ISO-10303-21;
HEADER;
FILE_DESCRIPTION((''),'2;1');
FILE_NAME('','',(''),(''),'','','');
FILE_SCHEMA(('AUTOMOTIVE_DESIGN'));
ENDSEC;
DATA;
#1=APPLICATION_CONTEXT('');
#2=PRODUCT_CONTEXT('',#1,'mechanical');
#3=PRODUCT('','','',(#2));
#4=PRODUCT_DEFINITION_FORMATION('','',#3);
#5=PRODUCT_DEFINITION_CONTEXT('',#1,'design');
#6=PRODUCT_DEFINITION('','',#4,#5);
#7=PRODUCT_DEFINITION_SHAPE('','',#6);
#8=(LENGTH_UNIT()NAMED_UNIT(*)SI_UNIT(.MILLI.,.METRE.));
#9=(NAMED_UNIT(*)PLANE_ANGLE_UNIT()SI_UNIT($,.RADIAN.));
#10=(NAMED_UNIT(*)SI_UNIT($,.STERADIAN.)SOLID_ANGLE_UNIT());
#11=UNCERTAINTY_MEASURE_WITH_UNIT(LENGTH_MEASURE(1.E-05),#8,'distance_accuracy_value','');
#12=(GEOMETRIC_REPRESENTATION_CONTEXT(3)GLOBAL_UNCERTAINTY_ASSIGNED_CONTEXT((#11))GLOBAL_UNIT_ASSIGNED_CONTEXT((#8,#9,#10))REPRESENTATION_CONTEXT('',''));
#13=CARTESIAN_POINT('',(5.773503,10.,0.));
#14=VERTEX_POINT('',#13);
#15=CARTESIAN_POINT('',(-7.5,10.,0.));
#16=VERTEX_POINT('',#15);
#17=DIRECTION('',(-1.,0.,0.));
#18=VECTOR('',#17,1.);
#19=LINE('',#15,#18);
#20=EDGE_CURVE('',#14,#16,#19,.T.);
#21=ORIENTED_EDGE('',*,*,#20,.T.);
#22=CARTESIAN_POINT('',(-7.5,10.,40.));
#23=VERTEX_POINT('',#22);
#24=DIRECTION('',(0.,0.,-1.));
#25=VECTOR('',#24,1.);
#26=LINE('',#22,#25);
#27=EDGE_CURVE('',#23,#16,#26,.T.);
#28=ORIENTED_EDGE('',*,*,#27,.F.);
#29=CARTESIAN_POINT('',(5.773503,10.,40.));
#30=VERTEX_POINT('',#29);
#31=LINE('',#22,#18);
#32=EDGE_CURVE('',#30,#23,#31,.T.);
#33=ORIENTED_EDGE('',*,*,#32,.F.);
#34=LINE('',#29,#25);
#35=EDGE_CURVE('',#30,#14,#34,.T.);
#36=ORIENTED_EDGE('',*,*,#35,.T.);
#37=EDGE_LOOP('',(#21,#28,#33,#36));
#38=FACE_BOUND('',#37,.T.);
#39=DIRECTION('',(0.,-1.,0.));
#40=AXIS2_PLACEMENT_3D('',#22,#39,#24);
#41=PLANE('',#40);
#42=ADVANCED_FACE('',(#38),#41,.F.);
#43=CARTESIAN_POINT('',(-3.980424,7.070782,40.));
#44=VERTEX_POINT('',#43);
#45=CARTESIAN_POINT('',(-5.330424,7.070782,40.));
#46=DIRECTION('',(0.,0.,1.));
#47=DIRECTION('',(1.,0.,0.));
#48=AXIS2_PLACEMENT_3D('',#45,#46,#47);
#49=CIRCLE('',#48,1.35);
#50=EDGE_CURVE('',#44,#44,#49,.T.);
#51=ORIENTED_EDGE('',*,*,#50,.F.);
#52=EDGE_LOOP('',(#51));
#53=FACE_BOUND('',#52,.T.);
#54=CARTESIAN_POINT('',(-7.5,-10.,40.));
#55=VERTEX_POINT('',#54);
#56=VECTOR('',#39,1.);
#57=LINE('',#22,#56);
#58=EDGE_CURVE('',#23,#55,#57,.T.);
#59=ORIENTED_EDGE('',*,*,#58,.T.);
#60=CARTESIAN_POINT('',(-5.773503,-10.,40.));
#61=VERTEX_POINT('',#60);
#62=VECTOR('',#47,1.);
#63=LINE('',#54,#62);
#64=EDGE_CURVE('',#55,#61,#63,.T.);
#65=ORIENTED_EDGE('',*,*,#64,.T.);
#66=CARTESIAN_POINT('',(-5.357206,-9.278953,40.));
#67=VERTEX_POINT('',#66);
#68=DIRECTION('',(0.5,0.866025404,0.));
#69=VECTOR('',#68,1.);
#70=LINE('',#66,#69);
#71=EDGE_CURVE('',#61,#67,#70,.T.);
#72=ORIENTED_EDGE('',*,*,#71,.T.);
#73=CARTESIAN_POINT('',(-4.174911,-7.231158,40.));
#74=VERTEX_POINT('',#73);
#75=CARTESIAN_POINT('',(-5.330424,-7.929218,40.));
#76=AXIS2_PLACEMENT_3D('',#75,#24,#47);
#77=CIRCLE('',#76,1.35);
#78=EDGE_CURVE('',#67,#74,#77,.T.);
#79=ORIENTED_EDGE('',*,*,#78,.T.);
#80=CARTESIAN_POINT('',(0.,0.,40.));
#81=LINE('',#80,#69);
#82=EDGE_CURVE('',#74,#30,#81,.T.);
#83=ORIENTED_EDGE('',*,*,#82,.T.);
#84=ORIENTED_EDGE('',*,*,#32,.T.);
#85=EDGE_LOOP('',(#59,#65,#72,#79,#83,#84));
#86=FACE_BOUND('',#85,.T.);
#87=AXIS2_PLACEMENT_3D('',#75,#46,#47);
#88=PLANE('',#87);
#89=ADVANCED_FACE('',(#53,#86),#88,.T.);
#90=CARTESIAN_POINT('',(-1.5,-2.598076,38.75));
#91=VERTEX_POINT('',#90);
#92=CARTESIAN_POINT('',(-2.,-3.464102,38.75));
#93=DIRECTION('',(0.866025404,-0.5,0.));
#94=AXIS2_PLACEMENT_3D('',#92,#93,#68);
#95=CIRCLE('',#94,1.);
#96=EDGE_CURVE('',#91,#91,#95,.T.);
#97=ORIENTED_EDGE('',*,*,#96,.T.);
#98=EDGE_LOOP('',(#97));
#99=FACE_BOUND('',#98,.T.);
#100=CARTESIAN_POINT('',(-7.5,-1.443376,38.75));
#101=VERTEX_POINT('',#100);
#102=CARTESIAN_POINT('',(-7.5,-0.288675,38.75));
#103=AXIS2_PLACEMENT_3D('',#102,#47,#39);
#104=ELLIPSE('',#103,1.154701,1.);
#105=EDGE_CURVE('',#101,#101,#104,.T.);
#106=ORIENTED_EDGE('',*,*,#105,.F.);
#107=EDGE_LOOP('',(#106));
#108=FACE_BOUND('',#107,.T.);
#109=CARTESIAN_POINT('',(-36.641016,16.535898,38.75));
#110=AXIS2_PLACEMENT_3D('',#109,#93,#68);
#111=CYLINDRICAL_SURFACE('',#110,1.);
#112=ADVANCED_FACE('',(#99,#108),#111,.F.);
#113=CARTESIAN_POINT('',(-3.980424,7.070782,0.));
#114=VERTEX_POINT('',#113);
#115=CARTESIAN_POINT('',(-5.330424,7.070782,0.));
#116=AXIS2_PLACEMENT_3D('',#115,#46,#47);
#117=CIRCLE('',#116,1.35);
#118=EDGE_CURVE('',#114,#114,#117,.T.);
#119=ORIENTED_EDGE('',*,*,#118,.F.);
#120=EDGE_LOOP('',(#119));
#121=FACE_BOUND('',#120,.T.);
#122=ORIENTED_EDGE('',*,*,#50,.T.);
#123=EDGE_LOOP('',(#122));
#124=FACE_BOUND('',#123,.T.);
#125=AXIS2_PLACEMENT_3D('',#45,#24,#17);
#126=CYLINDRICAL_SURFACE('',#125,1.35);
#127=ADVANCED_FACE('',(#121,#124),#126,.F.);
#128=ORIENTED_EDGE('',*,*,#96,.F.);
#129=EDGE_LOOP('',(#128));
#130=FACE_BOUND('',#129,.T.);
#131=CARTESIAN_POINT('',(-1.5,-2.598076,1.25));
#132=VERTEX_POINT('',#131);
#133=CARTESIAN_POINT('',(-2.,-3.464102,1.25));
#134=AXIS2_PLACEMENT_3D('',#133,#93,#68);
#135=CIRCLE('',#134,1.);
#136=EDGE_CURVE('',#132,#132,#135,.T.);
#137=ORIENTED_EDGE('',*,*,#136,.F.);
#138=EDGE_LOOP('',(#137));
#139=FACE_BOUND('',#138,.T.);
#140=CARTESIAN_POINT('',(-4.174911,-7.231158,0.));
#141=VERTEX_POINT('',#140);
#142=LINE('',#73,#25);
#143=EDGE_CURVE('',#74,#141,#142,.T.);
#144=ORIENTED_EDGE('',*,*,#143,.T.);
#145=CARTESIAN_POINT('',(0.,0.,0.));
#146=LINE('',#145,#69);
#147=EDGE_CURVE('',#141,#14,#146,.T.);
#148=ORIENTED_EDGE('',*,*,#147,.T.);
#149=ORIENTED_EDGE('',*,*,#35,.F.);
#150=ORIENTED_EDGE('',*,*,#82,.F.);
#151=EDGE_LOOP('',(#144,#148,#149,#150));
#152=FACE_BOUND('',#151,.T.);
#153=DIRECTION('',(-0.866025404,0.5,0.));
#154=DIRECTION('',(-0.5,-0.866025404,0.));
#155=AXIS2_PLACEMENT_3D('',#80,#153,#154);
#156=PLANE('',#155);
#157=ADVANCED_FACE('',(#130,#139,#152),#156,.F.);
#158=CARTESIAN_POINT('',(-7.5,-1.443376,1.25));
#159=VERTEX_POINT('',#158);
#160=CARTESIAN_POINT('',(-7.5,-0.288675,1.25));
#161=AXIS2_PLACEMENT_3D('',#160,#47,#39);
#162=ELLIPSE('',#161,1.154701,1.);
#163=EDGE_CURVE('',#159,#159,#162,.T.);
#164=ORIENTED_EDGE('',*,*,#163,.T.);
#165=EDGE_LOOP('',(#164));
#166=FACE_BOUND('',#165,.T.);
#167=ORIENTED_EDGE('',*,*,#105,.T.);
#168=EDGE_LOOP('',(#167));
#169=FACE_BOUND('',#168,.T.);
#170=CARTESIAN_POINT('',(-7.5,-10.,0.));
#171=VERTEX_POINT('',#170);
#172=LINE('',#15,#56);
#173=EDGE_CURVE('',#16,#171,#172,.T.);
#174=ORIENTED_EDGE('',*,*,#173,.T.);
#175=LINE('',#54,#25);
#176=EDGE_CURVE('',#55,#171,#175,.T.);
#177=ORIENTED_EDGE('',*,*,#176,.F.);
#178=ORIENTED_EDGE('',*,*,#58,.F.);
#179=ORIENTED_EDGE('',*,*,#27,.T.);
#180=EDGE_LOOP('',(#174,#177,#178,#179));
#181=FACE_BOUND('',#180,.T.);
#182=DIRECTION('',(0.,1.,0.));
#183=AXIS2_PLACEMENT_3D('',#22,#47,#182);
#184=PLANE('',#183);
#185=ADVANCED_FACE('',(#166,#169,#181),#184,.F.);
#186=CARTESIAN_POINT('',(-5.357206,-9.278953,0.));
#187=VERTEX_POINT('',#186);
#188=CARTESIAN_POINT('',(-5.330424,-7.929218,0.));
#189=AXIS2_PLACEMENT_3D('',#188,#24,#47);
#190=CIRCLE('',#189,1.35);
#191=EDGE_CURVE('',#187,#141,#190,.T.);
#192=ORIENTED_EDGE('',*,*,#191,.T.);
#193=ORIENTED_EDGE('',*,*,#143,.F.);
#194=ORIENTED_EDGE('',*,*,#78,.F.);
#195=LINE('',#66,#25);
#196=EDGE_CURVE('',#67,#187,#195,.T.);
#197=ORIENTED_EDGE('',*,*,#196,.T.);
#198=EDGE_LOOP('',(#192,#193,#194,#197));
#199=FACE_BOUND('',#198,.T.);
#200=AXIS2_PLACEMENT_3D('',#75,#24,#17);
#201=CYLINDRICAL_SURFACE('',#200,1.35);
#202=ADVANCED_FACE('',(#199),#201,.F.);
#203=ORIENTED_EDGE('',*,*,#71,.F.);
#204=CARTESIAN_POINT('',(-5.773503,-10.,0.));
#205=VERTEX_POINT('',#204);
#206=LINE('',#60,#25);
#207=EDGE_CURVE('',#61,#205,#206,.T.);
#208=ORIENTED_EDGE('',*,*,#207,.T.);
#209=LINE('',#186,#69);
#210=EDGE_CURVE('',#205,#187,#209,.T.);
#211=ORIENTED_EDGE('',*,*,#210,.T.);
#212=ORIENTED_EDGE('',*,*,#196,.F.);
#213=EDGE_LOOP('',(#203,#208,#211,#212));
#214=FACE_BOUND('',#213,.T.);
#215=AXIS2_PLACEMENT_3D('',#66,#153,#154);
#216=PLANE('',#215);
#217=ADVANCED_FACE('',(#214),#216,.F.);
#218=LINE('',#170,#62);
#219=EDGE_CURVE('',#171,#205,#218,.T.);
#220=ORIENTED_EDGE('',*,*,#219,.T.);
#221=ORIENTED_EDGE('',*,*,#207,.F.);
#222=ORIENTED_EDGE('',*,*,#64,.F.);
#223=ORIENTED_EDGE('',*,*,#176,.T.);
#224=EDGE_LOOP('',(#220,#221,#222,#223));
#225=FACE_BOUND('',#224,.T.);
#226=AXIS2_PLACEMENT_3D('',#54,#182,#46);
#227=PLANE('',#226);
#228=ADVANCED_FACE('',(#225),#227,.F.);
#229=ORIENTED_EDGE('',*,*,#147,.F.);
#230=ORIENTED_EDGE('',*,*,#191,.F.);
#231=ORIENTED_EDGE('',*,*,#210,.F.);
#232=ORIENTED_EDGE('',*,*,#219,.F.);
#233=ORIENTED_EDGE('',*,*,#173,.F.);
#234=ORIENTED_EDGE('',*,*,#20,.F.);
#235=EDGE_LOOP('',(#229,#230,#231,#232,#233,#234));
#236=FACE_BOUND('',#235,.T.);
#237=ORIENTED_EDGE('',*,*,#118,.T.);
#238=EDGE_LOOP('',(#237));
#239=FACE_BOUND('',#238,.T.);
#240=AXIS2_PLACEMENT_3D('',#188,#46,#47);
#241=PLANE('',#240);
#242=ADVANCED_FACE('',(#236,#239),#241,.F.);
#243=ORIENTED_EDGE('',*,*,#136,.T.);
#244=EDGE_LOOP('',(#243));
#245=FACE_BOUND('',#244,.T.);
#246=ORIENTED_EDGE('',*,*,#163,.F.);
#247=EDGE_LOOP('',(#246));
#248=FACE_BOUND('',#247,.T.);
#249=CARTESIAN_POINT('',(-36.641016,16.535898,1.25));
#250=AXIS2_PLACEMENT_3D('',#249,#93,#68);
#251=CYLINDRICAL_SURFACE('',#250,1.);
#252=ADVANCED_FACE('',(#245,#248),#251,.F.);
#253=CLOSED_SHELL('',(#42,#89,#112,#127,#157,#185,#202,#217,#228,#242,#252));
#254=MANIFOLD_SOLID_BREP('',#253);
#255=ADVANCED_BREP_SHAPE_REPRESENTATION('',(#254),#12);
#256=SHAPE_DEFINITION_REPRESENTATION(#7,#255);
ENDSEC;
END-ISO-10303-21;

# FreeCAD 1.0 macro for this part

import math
import FreeCAD as App
import Part
import Sketcher

V = App.Vector
Q = App.Units.Quantity

doc = App.newDocument("Part")
body = doc.addObject("PartDesign::Body", "Body")

sketch1 = body.newObject("Sketcher::SketchObject", "Sketch")
sketch1.AttachmentSupport = (doc.getObject("XY_Plane"), [""])
sketch1.MapMode = "FlatFace"
sketch1.addGeometry([
    Part.LineSegment(V(0, 0, 0), V(5.8, 10, 0)),
    Part.LineSegment(V(5.8, 10, 0), V(-7.5, 10, 0)),
    Part.LineSegment(V(-7.5, 10, 0), V(-7.5, -10, 0)),
    Part.LineSegment(V(-7.5, -10, 0), V(-5.8, -10, 0)),
    Part.LineSegment(V(-5.8, -10, 0), V(-5.4, -9.3, 0)),
    Part.ArcOfCircle(Part.Circle(V(-5.3, -7.9, 0), V(0, 0, 1), 1.4), math.radians(31), math.radians(269)),
    Part.LineSegment(V(-4.2, -7.2, 0), V(0, 0, 0)),
    Part.Circle(V(-5.3, 7.1, 0), V(0, 0, 1), 1.4),
], False)
sketch1.addConstraint([
    Sketcher.Constraint("Coincident", 0, 2, 1, 1),
    Sketcher.Constraint("Coincident", 1, 2, 2, 1),
    Sketcher.Constraint("Coincident", 2, 2, 3, 1),
    Sketcher.Constraint("Coincident", 3, 2, 4, 1),
    Sketcher.Constraint("Coincident", 4, 2, 5, 2),
    Sketcher.Constraint("Coincident", 5, 1, 6, 1),
    Sketcher.Constraint("Coincident", 6, 2, 0, 1),
    Sketcher.Constraint("Horizontal", 1),
    Sketcher.Constraint("Vertical", 2),
    Sketcher.Constraint("Horizontal", 3),
    Sketcher.Constraint("Coincident", 6, 2, -1, 1),
    Sketcher.Constraint("Equal", 5, 7),
    Sketcher.Constraint("Symmetric", 0, 2, 3, 2, -1, 1),
    Sketcher.Constraint("Parallel", 0, 4),
    Sketcher.Constraint("Parallel", 4, 6),
    Sketcher.Constraint("Vertical", 5, 3, 7, 3),
    Sketcher.Constraint("Diameter", 7, 2.7),
    Sketcher.Constraint("DistanceY", 2, 2, 2, 1, 20.0),
    Sketcher.Constraint("Angle", 0, Q("60 deg")),
    Sketcher.Constraint("DistanceY", 5, 3, 7, 3, 15.0),
    Sketcher.Constraint("DistanceX", 1, 2, -1, 1, 7.5),
    Sketcher.Constraint("Distance", 6, 8.349822),
    Sketcher.Constraint("DistanceY", 5, 3, -1, 1, 7.929218),
])
pad1 = body.newObject("PartDesign::Pad", "Pad")
pad1.Profile = sketch1
pad1.Length = 40

sketch2 = body.newObject("Sketcher::SketchObject", "Sketch001")
sketch2.Placement = App.Placement(V(0, 0, 0), App.Rotation(V(0, 0, -1), V(0.5, 0.866025404, 0), V(0.866025404, -0.5, 0), "ZXY"))
sketch2.addGeometry([
    Part.Circle(V(-1.2, -4, 0), V(0, 0, 1), 1),
    Part.Circle(V(-38.8, -4, 0), V(0, 0, 1), 1),
], False)
sketch2.addConstraint([
    Sketcher.Constraint("Equal", 0, 1),
    Sketcher.Constraint("Horizontal", 0, 3, 1, 3),
    Sketcher.Constraint("Diameter", 0, 2.0),
    Sketcher.Constraint("DistanceY", 0, 3, -1, 1, 4.0),
    Sketcher.Constraint("DistanceX", 1, 3, 0, 3, 37.5),
    Sketcher.Constraint("DistanceX", 0, 3, -1, 1, 1.25),
])
pocket1 = body.newObject("PartDesign::Pocket", "Pocket")
pocket1.Profile = sketch2
pocket1.Length = 40

doc.recompute()
